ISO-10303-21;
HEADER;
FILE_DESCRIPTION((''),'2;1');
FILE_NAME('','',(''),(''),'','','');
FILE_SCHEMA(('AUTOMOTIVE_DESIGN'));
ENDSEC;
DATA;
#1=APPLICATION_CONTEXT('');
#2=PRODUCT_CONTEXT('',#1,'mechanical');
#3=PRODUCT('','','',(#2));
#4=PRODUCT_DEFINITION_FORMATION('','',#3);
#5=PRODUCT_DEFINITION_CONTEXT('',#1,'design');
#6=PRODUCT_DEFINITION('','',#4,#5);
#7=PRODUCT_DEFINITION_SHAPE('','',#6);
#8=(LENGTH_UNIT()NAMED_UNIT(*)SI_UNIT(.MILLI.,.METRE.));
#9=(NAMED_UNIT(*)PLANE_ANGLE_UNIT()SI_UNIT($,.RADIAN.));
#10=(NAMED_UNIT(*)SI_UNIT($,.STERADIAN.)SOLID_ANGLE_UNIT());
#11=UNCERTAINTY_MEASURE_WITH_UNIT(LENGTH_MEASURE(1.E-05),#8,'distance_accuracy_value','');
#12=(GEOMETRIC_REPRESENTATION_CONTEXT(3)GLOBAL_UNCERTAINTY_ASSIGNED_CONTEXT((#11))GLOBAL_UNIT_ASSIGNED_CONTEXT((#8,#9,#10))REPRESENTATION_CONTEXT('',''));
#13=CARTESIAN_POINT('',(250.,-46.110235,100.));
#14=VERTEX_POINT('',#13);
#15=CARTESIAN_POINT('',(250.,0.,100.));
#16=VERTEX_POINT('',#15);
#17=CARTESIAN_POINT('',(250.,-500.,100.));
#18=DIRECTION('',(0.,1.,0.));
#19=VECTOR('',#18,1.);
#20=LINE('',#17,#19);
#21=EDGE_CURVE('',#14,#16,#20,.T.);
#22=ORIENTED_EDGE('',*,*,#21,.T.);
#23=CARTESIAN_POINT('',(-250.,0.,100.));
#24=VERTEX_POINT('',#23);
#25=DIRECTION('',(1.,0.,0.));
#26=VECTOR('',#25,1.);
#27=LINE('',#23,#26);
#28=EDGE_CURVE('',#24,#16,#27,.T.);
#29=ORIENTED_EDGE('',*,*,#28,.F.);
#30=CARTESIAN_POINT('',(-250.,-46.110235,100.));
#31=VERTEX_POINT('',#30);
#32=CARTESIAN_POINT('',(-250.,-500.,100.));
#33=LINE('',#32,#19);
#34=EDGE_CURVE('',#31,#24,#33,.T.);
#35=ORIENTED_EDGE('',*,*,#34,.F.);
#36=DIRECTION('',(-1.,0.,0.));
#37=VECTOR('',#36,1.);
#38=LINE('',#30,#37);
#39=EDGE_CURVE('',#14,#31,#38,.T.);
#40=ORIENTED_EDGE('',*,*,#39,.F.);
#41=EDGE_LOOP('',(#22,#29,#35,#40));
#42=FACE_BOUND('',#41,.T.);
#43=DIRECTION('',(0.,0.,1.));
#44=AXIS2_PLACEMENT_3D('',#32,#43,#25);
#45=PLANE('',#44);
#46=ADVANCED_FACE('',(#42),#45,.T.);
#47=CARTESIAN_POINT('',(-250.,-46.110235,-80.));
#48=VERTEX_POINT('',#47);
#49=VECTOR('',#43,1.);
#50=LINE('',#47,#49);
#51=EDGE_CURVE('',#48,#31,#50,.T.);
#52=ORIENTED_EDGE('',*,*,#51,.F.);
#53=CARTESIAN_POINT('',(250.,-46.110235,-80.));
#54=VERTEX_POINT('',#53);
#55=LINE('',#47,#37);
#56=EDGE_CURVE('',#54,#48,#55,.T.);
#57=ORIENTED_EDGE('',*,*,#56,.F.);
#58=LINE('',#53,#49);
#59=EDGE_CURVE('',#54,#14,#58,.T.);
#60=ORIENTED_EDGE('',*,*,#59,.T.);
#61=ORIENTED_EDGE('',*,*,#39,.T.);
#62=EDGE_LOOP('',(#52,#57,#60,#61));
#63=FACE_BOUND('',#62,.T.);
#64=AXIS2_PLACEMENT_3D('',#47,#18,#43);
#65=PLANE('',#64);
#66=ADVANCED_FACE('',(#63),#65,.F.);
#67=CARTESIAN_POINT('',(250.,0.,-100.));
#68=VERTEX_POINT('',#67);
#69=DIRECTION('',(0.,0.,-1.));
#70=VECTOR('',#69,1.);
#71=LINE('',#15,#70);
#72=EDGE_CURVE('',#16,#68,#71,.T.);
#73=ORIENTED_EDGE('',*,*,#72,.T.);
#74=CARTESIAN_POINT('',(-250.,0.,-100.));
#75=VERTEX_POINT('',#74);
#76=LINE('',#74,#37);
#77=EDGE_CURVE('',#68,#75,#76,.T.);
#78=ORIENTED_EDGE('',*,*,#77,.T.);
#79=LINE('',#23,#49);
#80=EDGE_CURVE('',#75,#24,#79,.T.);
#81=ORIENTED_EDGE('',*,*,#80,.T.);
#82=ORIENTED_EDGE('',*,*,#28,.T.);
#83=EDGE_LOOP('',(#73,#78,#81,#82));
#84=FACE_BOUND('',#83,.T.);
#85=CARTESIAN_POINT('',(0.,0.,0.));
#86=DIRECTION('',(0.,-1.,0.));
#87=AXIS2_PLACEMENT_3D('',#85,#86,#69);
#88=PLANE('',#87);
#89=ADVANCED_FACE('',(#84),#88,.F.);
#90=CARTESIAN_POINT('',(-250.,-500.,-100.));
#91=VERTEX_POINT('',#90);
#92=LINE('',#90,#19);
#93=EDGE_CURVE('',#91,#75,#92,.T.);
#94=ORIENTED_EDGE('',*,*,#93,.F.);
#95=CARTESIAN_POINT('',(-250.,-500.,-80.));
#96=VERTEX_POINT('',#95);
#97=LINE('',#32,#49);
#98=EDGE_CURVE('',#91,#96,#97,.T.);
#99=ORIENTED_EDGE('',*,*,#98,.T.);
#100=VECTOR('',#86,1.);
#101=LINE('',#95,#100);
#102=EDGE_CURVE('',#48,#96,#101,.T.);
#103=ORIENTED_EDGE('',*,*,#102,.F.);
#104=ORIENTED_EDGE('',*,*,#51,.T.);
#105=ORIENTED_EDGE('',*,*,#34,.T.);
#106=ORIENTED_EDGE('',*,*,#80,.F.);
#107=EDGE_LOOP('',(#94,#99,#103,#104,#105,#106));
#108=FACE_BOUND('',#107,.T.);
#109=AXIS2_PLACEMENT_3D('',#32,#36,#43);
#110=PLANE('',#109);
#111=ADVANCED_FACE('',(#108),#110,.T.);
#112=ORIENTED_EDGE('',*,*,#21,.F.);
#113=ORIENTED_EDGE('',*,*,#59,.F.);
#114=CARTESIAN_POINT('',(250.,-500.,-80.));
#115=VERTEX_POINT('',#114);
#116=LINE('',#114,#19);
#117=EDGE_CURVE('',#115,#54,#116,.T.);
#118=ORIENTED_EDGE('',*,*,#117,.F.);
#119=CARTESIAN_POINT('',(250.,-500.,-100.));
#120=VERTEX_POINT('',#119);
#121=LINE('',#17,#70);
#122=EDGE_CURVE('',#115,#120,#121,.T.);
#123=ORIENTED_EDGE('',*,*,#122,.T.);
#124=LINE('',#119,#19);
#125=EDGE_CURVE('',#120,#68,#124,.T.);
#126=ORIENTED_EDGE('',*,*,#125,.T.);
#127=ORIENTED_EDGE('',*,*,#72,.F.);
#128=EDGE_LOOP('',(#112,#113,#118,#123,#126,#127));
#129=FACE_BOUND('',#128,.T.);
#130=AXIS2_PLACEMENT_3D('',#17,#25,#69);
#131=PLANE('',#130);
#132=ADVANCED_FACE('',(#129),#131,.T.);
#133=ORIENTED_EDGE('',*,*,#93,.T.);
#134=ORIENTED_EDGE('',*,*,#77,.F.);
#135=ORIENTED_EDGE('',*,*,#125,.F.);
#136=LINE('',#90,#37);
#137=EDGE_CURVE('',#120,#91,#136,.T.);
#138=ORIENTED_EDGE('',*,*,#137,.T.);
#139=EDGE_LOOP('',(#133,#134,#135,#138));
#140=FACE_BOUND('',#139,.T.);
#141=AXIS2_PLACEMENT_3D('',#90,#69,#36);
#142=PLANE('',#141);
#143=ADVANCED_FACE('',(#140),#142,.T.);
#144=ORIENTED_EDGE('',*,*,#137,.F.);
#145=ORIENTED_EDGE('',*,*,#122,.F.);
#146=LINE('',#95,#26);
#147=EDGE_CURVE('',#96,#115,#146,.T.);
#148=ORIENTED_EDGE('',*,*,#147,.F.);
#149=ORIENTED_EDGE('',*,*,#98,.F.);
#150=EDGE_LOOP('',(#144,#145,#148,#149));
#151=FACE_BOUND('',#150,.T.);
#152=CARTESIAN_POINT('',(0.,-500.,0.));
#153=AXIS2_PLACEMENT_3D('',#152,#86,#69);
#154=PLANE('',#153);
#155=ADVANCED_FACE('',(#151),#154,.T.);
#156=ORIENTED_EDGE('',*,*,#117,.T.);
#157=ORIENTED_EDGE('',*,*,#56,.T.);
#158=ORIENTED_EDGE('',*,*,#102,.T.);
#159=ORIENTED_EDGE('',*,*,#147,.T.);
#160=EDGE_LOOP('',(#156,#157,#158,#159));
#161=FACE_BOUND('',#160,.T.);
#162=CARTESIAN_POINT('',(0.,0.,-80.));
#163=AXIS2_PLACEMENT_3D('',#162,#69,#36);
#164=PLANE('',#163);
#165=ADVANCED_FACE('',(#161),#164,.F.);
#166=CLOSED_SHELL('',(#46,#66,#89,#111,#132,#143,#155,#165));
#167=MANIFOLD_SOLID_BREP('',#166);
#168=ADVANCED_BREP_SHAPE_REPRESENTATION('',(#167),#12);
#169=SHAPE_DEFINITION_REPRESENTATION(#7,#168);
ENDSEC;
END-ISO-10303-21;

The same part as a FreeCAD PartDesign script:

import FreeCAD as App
import Part
import Sketcher
from FreeCAD import Vector
Q = App.Units.Quantity


def add_polygon(sketch, points):
    """Adds a closed chain of lines whose ends are joined by coincident constraints."""
    first, n = sketch.GeometryCount, len(points)
    for a, b in zip(points, points[1:] + points[:1]):
        sketch.addGeometry(Part.LineSegment(App.Vector(*a, 0), App.Vector(*b, 0)), False)
    for i in range(n):
        sketch.addConstraint(Sketcher.Constraint("Coincident", first + i, 2, first + (i + 1) % n, 1))

doc = App.newDocument("Part")
body = doc.addObject("PartDesign::Body", "Body")

sketch1 = body.newObject("Sketcher::SketchObject", "Sketch")
sketch1.AttachmentSupport = (doc.getObject("XZ_Plane"), [""])
sketch1.MapMode = "FlatFace"
add_polygon(sketch1, [(-250, -100), (-250, 100), (250, 100), (250, -100)])
sketch1.addConstraint([
    Sketcher.Constraint("Vertical", 0),
    Sketcher.Constraint("Horizontal", 1),
    Sketcher.Constraint("Vertical", 2),
    Sketcher.Constraint("Horizontal", 3),
    Sketcher.Constraint("Symmetric", 0, 2, 2, 2, -1, 1),
    Sketcher.Constraint("DistanceX", 1, 1, 1, 2, Q("500 mm")),
    Sketcher.Constraint("DistanceY", 0, 1, 0, 2, Q("200 mm")),
])
pad1 = body.newObject("PartDesign::Pad", "Pad")
pad1.Profile = sketch1
pad1.Length = 500

sketch2 = body.newObject("Sketcher::SketchObject", "Sketch001")
sketch2.AttachmentSupport = (doc.getObject("XY_Plane"), [""])
sketch2.MapMode = "FlatFace"
sketch2.AttachmentOffset = App.Placement(Vector(0, 0, 100), App.Rotation())
add_polygon(sketch2, [(-250, -46.110235), (-250, -500), (250, -500), (250, -46.110235)])
sketch2.addConstraint([
    Sketcher.Constraint("Vertical", 0),
    Sketcher.Constraint("Horizontal", 1),
    Sketcher.Constraint("Vertical", 2),
    Sketcher.Constraint("Horizontal", 3),
    Sketcher.Constraint("DistanceX", 1, 1, 1, 2, Q("500 mm")),
    Sketcher.Constraint("DistanceX", 0, 2, -1, 1, Q("250 mm")),
    Sketcher.Constraint("DistanceY", 0, 2, -1, 1, Q("500 mm")),
    Sketcher.Constraint("DistanceY", 0, 2, 0, 1, Q("453.889765 mm")),
])
pocket1 = body.newObject("PartDesign::Pocket", "Pocket")
pocket1.Profile = sketch2
pocket1.Length = 180

doc.recompute()
